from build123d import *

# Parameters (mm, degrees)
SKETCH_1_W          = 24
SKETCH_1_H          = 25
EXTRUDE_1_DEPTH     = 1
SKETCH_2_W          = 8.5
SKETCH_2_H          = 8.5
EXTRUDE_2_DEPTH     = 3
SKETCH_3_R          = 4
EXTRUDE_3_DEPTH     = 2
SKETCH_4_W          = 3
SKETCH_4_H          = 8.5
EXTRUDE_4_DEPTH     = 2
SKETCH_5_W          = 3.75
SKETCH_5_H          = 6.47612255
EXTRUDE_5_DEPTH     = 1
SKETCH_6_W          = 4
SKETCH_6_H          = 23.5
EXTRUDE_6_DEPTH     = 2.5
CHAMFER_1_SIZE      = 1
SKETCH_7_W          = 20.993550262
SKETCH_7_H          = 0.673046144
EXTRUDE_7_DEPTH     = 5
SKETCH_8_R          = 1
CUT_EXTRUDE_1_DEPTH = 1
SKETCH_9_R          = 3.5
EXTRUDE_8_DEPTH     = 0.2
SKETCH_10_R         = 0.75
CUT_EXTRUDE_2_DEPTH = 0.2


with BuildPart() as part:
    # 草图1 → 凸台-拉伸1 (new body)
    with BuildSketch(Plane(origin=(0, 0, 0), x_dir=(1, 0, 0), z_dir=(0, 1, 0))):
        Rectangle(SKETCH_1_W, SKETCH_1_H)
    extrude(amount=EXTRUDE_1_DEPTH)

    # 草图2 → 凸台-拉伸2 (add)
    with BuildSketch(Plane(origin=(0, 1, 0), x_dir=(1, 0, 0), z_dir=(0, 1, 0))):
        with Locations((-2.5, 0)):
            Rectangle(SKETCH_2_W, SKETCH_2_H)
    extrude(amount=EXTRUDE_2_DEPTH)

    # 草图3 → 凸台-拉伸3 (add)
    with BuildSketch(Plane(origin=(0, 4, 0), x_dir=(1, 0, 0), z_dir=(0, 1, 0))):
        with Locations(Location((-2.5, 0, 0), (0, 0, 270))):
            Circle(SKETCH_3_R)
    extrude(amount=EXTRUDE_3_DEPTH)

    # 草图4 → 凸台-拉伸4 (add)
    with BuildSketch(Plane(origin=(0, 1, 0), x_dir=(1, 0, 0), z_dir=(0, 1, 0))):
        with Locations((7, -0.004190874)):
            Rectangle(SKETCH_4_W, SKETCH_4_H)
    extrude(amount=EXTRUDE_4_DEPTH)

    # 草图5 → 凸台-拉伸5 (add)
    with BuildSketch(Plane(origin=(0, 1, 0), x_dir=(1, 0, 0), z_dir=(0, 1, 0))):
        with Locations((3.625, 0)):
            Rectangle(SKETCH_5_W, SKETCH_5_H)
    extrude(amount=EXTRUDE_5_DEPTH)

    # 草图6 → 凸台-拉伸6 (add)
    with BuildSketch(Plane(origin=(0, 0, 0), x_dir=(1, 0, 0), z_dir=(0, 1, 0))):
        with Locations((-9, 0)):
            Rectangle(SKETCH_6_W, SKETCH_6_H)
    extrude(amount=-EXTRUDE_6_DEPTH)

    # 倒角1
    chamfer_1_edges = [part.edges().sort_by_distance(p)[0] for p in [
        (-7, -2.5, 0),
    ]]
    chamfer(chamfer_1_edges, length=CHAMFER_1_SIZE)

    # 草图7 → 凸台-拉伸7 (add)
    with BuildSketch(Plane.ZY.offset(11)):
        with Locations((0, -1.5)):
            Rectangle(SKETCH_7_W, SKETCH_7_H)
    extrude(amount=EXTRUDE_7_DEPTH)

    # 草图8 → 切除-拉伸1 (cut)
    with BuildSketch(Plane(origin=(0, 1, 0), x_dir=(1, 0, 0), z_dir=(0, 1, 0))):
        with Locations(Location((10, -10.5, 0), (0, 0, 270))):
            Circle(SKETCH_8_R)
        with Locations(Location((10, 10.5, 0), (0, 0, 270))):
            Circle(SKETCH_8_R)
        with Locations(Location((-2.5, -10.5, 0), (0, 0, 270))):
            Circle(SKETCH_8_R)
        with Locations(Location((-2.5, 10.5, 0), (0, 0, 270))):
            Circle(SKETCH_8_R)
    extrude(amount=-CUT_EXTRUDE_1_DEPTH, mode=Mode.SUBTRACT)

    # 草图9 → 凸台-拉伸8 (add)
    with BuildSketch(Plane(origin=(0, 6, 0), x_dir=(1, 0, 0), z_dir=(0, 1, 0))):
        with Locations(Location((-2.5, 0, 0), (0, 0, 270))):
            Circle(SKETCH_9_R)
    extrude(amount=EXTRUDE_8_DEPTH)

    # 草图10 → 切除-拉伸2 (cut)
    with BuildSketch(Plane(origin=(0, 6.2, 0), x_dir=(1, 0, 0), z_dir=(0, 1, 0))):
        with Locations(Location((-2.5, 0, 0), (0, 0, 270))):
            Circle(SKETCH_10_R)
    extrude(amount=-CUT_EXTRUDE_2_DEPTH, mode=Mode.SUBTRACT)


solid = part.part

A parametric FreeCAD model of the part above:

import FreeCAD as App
import Part
import Sketcher


def edges_at(feature, points):
    """Names of the edges that pass closest to the given points."""
    edges = feature.Shape.Edges
    near = lambda p: min(range(len(edges)), key=lambda i: edges[i].distToShape(Part.Vertex(*p))[0])
    return sorted({f"Edge{near(p) + 1}" for p in points})


def add_polygon(sketch, points):
    """Adds a closed chain of lines whose ends are joined by coincident constraints."""
    first, n = sketch.GeometryCount, len(points)
    for a, b in zip(points, points[1:] + points[:1]):
        sketch.addGeometry(Part.LineSegment(App.Vector(*a, 0), App.Vector(*b, 0)), False)
    for i in range(n):
        sketch.addConstraint(Sketcher.Constraint("Coincident", first + i, 2, first + (i + 1) % n, 1))

doc = App.newDocument("Part")
body = doc.addObject("PartDesign::Body", "Body")

sketch1 = body.newObject("Sketcher::SketchObject", "Sketch")
sketch1.AttachmentSupport = (doc.getObject("XZ_Plane"), [""])
sketch1.MapMode = "FlatFace"
add_polygon(sketch1, [(-12, -12), (-12, 12), (12, 12), (12, -12)])
sketch1.addConstraint([
    Sketcher.Constraint("Vertical", 0),
    Sketcher.Constraint("Horizontal", 1),
    Sketcher.Constraint("Vertical", 2),
    Sketcher.Constraint("Horizontal", 3),
    Sketcher.Constraint("Symmetric", 0, 2, 2, 2, -1, 1),
    Sketcher.Constraint("DistanceX", 1, 1, 1, 2, 24.0),
    Sketcher.Constraint("DistanceY", 0, 1, 0, 2, 25.0),
])
pad1 = body.newObject("PartDesign::Pad", "Pad")
pad1.Profile = sketch1
pad1.Length = 1
pad1.Reversed = True

sketch2 = body.newObject("Sketcher::SketchObject", "Sketch001")
sketch2.AttachmentSupport = (doc.getObject("XZ_Plane"), [""])
sketch2.MapMode = "FlatFace"
sketch2.AttachmentOffset = App.Placement(App.Vector(0, 0, -1), App.Rotation())
add_polygon(sketch2, [(-7, -4), (-7, 4), (2, 4), (2, -4)])
sketch2.addConstraint([
    Sketcher.Constraint("Vertical", 0),
    Sketcher.Constraint("Horizontal", 1),
    Sketcher.Constraint("Vertical", 2),
    Sketcher.Constraint("Horizontal", 3),
    Sketcher.Constraint("Equal", 3, 0),
    Sketcher.Constraint("DistanceX", 1, 1, 1, 2, 8.5),
    Sketcher.Constraint("DistanceX", 0, 2, -1, 1, 6.75),
    Sketcher.Constraint("DistanceY", -1, 1, 0, 2, 4.25),
])
pad2 = body.newObject("PartDesign::Pad", "Pad001")
pad2.Profile = sketch2
pad2.Length = 3
pad2.Reversed = True

sketch3 = body.newObject("Sketcher::SketchObject", "Sketch002")
sketch3.AttachmentSupport = (doc.getObject("XZ_Plane"), [""])
sketch3.MapMode = "FlatFace"
sketch3.AttachmentOffset = App.Placement(App.Vector(0, 0, -4), App.Rotation())
sketch3.addGeometry(Part.Circle(App.Vector(-2.5, 0, 0), App.Vector(0, 0, 1), 4), False)
sketch3.addConstraint([
    Sketcher.Constraint("PointOnObject", 0, 3, -1),
    Sketcher.Constraint("Diameter", 0, 8.0),
    Sketcher.Constraint("DistanceX", 0, 3, -1, 1, 2.5),
])
pad3 = body.newObject("PartDesign::Pad", "Pad002")
pad3.Profile = sketch3
pad3.Length = 2
pad3.Reversed = True

sketch4 = body.newObject("Sketcher::SketchObject", "Sketch003")
sketch4.AttachmentSupport = (doc.getObject("XZ_Plane"), [""])
sketch4.MapMode = "FlatFace"
sketch4.AttachmentOffset = App.Placement(App.Vector(0, 0, -1), App.Rotation())
add_polygon(sketch4, [(5.5, -4.2), (5.5, 4.3), (8.5, 4.3), (8.5, -4.2)])
sketch4.addConstraint([
    Sketcher.Constraint("Vertical", 0),
    Sketcher.Constraint("Horizontal", 1),
    Sketcher.Constraint("Vertical", 2),
    Sketcher.Constraint("Horizontal", 3),
    Sketcher.Constraint("DistanceX", 1, 1, 1, 2, 3.0),
    Sketcher.Constraint("DistanceY", 0, 1, 0, 2, 8.5),
    Sketcher.Constraint("DistanceX", -1, 1, 0, 2, 5.5),
    Sketcher.Constraint("DistanceY", -1, 1, 0, 2, 4.254191),
])
pad4 = body.newObject("PartDesign::Pad", "Pad003")
pad4.Profile = sketch4
pad4.Length = 2
pad4.Reversed = True

sketch5 = body.newObject("Sketcher::SketchObject", "Sketch004")
sketch5.AttachmentSupport = (doc.getObject("XZ_Plane"), [""])
sketch5.MapMode = "FlatFace"
sketch5.AttachmentOffset = App.Placement(App.Vector(0, 0, -1), App.Rotation())
add_polygon(sketch5, [(1.8, -3.2), (1.8, 3.2), (5.5, 3.2), (5.5, -3.2)])
sketch5.addConstraint([
    Sketcher.Constraint("Vertical", 0),
    Sketcher.Constraint("Horizontal", 1),
    Sketcher.Constraint("Vertical", 2),
    Sketcher.Constraint("Horizontal", 3),
    Sketcher.Constraint("DistanceX", 1, 1, 1, 2, 3.75),
    Sketcher.Constraint("DistanceX", -1, 1, 1, 2, 5.5),
    Sketcher.Constraint("DistanceY", 0, 1, 0, 2, 6.476123),
    Sketcher.Constraint("DistanceY", -1, 1, 0, 2, 3.238061),
])
pad5 = body.newObject("PartDesign::Pad", "Pad004")
pad5.Profile = sketch5
pad5.Length = 1
pad5.Reversed = True

sketch6 = body.newObject("Sketcher::SketchObject", "Sketch005")
sketch6.AttachmentSupport = (doc.getObject("XZ_Plane"), [""])
sketch6.MapMode = "FlatFace"
add_polygon(sketch6, [(-11, -11.8), (-11, 11.8), (-7, 11.8), (-7, -11.8)])
sketch6.addConstraint([
    Sketcher.Constraint("Vertical", 0),
    Sketcher.Constraint("Horizontal", 1),
    Sketcher.Constraint("Vertical", 2),
    Sketcher.Constraint("Horizontal", 3),
    Sketcher.Constraint("DistanceX", 1, 1, 1, 2, 4.0),
    Sketcher.Constraint("DistanceY", 0, 1, 0, 2, 23.5),
    Sketcher.Constraint("DistanceX", 0, 2, -1, 1, 11.0),
    Sketcher.Constraint("DistanceY", -1, 1, 0, 2, 11.75),
])
pad6 = body.newObject("PartDesign::Pad", "Pad005")
pad6.Profile = sketch6
pad6.Length = 2.5
doc.recompute()

chamfer = body.newObject("PartDesign::Chamfer", "Chamfer")
chamfer.Base = (pad6, edges_at(pad6, [(-7, -2.5, 0)]))
chamfer.Size = 1

sketch7 = body.newObject("Sketcher::SketchObject", "Sketch006")
sketch7.AttachmentSupport = (doc.getObject("YZ_Plane"), [""])
sketch7.MapMode = "FlatFace"
sketch7.AttachmentOffset = App.Placement(App.Vector(0, 0, -11), App.Rotation())
add_polygon(sketch7, [(-1.2, -10.5), (-1.8, -10.5), (-1.8, 10.5), (-1.2, 10.5)])
sketch7.addConstraint([
    Sketcher.Constraint("Horizontal", 0),
    Sketcher.Constraint("Vertical", 1),
    Sketcher.Constraint("Horizontal", 2),
    Sketcher.Constraint("Vertical", 3),
    Sketcher.Constraint("DistanceY", 1, 1, 1, 2, 20.99355),
    Sketcher.Constraint("DistanceX", 0, 2, 0, 1, 0.673046),
    Sketcher.Constraint("DistanceX", 0, 2, -1, 1, 1.836523),
    Sketcher.Constraint("DistanceY", 0, 2, -1, 1, 10.496775),
])
pad7 = body.newObject("PartDesign::Pad", "Pad006")
pad7.Profile = sketch7
pad7.Length = 5
pad7.Reversed = True

sketch8 = body.newObject("Sketcher::SketchObject", "Sketch007")
sketch8.AttachmentSupport = (doc.getObject("XZ_Plane"), [""])
sketch8.MapMode = "FlatFace"
sketch8.AttachmentOffset = App.Placement(App.Vector(0, 0, -1), App.Rotation())
sketch8.addGeometry([
    Part.Circle(App.Vector(10, 10.5, 0), App.Vector(0, 0, 1), 1),
    Part.Circle(App.Vector(10, -10.5, 0), App.Vector(0, 0, 1), 1),
    Part.Circle(App.Vector(-2.5, 10.5, 0), App.Vector(0, 0, 1), 1),
    Part.Circle(App.Vector(-2.5, -10.5, 0), App.Vector(0, 0, 1), 1),
], False)
sketch8.addConstraint([
    Sketcher.Constraint("Equal", 0, 1),
    Sketcher.Constraint("Equal", 1, 2),
    Sketcher.Constraint("Equal", 2, 3),
    Sketcher.Constraint("Symmetric", 0, 3, 1, 3, -1),
    Sketcher.Constraint("Symmetric", 2, 3, 3, 3, -1),
    Sketcher.Constraint("Horizontal", 0, 3, 2, 3),
    Sketcher.Constraint("Diameter", 0, 2.0),
    Sketcher.Constraint("DistanceX", -1, 1, 0, 3, 10.0),
    Sketcher.Constraint("DistanceY", 1, 3, 0, 3, 21.0),
    Sketcher.Constraint("DistanceX", 2, 3, -1, 1, 2.5),
])
pocket1 = body.newObject("PartDesign::Pocket", "Pocket")
pocket1.Profile = sketch8
pocket1.Length = 1
pocket1.Reversed = True

sketch9 = body.newObject("Sketcher::SketchObject", "Sketch008")
sketch9.AttachmentSupport = (doc.getObject("XZ_Plane"), [""])
sketch9.MapMode = "FlatFace"
sketch9.AttachmentOffset = App.Placement(App.Vector(0, 0, -6), App.Rotation())
sketch9.addGeometry(Part.Circle(App.Vector(-2.5, 0, 0), App.Vector(0, 0, 1), 3.5), False)
sketch9.addConstraint([
    Sketcher.Constraint("PointOnObject", 0, 3, -1),
    Sketcher.Constraint("Diameter", 0, 7.0),
    Sketcher.Constraint("DistanceX", 0, 3, -1, 1, 2.5),
])
pad8 = body.newObject("PartDesign::Pad", "Pad007")
pad8.Profile = sketch9
pad8.Length = 0.2
pad8.Reversed = True

sketch10 = body.newObject("Sketcher::SketchObject", "Sketch009")
sketch10.AttachmentSupport = (doc.getObject("XZ_Plane"), [""])
sketch10.MapMode = "FlatFace"
sketch10.AttachmentOffset = App.Placement(App.Vector(0, 0, -6.2), App.Rotation())
sketch10.addGeometry(Part.Circle(App.Vector(-2.5, 0, 0), App.Vector(0, 0, 1), 0.8), False)
sketch10.addConstraint([
    Sketcher.Constraint("PointOnObject", 0, 3, -1),
    Sketcher.Constraint("Diameter", 0, 1.5),
    Sketcher.Constraint("DistanceX", 0, 3, -1, 1, 2.5),
])
pocket2 = body.newObject("PartDesign::Pocket", "Pocket001")
pocket2.Profile = sketch10
pocket2.Length = 0.2
pocket2.Reversed = True

doc.recompute()
